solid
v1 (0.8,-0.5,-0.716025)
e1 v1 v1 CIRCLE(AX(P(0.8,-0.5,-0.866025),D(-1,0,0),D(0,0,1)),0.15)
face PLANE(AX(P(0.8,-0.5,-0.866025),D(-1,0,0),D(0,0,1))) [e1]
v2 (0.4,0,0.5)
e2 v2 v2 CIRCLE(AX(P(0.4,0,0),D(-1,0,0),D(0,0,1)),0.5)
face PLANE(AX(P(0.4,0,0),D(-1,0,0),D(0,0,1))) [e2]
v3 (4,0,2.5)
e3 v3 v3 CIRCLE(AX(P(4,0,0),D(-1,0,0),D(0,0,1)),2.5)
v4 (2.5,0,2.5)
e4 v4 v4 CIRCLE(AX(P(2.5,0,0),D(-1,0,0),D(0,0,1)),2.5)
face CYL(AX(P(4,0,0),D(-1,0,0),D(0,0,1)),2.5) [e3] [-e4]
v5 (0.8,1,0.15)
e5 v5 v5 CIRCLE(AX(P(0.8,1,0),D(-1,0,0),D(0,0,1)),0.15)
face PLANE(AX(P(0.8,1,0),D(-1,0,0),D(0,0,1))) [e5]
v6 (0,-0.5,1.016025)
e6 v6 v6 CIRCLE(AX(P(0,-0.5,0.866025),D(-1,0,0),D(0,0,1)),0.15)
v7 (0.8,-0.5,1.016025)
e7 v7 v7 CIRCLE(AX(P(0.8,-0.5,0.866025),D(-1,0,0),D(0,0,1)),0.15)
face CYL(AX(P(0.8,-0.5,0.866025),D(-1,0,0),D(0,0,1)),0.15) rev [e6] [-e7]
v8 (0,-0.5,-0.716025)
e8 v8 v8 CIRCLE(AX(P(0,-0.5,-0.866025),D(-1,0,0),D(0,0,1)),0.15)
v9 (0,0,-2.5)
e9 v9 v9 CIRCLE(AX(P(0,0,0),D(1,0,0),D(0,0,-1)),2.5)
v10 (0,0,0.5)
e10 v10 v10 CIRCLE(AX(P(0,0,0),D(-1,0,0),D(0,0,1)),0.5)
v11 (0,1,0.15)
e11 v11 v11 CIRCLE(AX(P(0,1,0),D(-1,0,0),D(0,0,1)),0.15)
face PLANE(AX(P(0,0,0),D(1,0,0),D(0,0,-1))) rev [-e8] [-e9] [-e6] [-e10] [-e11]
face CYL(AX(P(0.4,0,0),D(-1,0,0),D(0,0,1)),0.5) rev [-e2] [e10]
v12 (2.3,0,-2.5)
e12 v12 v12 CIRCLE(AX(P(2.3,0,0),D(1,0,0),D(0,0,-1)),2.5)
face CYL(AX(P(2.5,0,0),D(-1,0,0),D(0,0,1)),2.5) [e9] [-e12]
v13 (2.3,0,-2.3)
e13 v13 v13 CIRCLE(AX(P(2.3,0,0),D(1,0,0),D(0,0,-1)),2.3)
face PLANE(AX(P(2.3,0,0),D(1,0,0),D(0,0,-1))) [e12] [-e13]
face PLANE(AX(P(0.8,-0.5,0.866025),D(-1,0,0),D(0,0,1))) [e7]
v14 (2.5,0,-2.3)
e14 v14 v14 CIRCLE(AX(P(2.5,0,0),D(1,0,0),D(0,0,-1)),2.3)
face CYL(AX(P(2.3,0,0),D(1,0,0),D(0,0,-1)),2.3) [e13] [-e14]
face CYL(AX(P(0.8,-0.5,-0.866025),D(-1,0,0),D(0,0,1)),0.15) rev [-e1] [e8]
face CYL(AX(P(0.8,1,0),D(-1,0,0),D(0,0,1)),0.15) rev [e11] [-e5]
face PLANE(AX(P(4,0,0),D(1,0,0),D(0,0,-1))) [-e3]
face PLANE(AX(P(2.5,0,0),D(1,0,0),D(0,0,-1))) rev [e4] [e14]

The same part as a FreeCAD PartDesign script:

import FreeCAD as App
import Part
import Sketcher

doc = App.newDocument("Part")
body = doc.addObject("PartDesign::Body", "Body")

sketch1 = doc.addObject("Sketcher::SketchObject", "Sketch")
body.addObject(sketch1)
sketch1.AttachmentSupport = (doc.YZ_Plane, [""])
sketch1.MapMode = "FlatFace"
sketch1.addGeometry(Part.Circle(App.Vector(0, 0, 0), App.Vector(0, 0, 1), 2.5), False)
sketch1.addConstraint([
    Sketcher.Constraint("Coincident", 0, 3, -1, 1),
    Sketcher.Constraint("Diameter", 0, 5.0),
])
pad1 = doc.addObject("PartDesign::Pad", "Pad")
body.addObject(pad1)
pad1.Profile = sketch1
pad1.Length = 2.5

sketch2 = doc.addObject("Sketcher::SketchObject", "Sketch001")
body.addObject(sketch2)
sketch2.AttachmentSupport = (doc.YZ_Plane, [""])
sketch2.MapMode = "FlatFace"
sketch2.AttachmentOffset = App.Placement(App.Vector(0, 0, 2.5), App.Rotation())
sketch2.addGeometry(Part.Circle(App.Vector(0, 0, 0), App.Vector(0, 0, 1), 2.4), False)
sketch2.addConstraint([
    Sketcher.Constraint("Coincident", 0, 3, -1, 1),
    Sketcher.Constraint("Diameter", 0, 4.8),
])
pad2 = doc.addObject("PartDesign::Pad", "Pad001")
body.addObject(pad2)
pad2.Profile = sketch2
pad2.Length = 1.5

sketch3 = doc.addObject("Sketcher::SketchObject", "Sketch002")
body.addObject(sketch3)
sketch3.AttachmentSupport = (doc.YZ_Plane, [""])
sketch3.MapMode = "FlatFace"
sketch3.AttachmentOffset = App.Placement(App.Vector(0, 0, 2.3), App.Rotation())
sketch3.addGeometry([
    Part.Circle(App.Vector(0, 0, 0), App.Vector(0, 0, 1), 2.5),
    Part.Circle(App.Vector(0, 0, 0), App.Vector(0, 0, 1), 2.3),
], False)
sketch3.addConstraint([
    Sketcher.Constraint("Coincident", 0, 3, -1, 1),
    Sketcher.Constraint("Coincident", 1, 3, -1, 1),
    Sketcher.Constraint("Diameter", 0, 5.0),
    Sketcher.Constraint("Diameter", 1, 4.6),
])
pocket1 = doc.addObject("PartDesign::Pocket", "Pocket")
body.addObject(pocket1)
pocket1.Profile = sketch3
pocket1.Length = 0.2
pocket1.Reversed = True

sketch4 = doc.addObject("Sketcher::SketchObject", "Sketch003")
body.addObject(sketch4)
sketch4.AttachmentSupport = (doc.YZ_Plane, [""])
sketch4.MapMode = "FlatFace"
sketch4.AttachmentOffset = App.Placement(App.Vector(0, 0, 2.5), App.Rotation())
sketch4.addGeometry([
    Part.Circle(App.Vector(0, 0, 0), App.Vector(0, 0, 1), 2.5),
    Part.Circle(App.Vector(0, 0, 0), App.Vector(0, 0, 1), 2.4),
], False)
sketch4.addConstraint([
    Sketcher.Constraint("Coincident", 0, 3, -1, 1),
    Sketcher.Constraint("Coincident", 1, 3, -1, 1),
    Sketcher.Constraint("Diameter", 0, 5.0),
    Sketcher.Constraint("Diameter", 1, 4.8),
])
pad3 = doc.addObject("PartDesign::Pad", "Pad002")
body.addObject(pad3)
pad3.Profile = sketch4
pad3.Length = 1.5

sketch5 = doc.addObject("Sketcher::SketchObject", "Sketch004")
body.addObject(sketch5)
sketch5.AttachmentSupport = (doc.YZ_Plane, [""])
sketch5.MapMode = "FlatFace"
sketch5.addGeometry(Part.Circle(App.Vector(0, 0, 0), App.Vector(0, 0, 1), 0.5), False)
sketch5.addConstraint([
    Sketcher.Constraint("Coincident", 0, 3, -1, 1),
    Sketcher.Constraint("Diameter", 0, 1.0),
])
pocket2 = doc.addObject("PartDesign::Pocket", "Pocket001")
body.addObject(pocket2)
pocket2.Profile = sketch5
pocket2.Length = 0.4
pocket2.Reversed = True

sketch6 = doc.addObject("Sketcher::SketchObject", "Sketch005")
body.addObject(sketch6)
sketch6.AttachmentSupport = (doc.YZ_Plane, [""])
sketch6.MapMode = "FlatFace"
sketch6.addGeometry([
    Part.Circle(App.Vector(1, 0, 0), App.Vector(0, 0, 1), 0.15),
    Part.Circle(App.Vector(-0.5, -0.87, 0), App.Vector(0, 0, 1), 0.15),
    Part.Circle(App.Vector(-0.5, 0.87, 0), App.Vector(0, 0, 1), 0.15),
], False)
sketch6.addConstraint([
    Sketcher.Constraint("Equal", 0, 1),
    Sketcher.Constraint("Equal", 1, 2),
    Sketcher.Constraint("Symmetric", 1, 3, 2, 3, -1),
    Sketcher.Constraint("PointOnObject", 0, 3, -1),
    Sketcher.Constraint("Diameter", 0, 0.3),
    Sketcher.Constraint("DistanceX", -1, 1, 0, 3, 1.0),
    Sketcher.Constraint("DistanceX", 1, 3, -1, 1, 0.5),
    Sketcher.Constraint("DistanceY", 1, 3, 2, 3, 1.732051),
])
pocket3 = doc.addObject("PartDesign::Pocket", "Pocket002")
body.addObject(pocket3)
pocket3.Profile = sketch6
pocket3.Length = 0.8
pocket3.Reversed = True

doc.recompute()
